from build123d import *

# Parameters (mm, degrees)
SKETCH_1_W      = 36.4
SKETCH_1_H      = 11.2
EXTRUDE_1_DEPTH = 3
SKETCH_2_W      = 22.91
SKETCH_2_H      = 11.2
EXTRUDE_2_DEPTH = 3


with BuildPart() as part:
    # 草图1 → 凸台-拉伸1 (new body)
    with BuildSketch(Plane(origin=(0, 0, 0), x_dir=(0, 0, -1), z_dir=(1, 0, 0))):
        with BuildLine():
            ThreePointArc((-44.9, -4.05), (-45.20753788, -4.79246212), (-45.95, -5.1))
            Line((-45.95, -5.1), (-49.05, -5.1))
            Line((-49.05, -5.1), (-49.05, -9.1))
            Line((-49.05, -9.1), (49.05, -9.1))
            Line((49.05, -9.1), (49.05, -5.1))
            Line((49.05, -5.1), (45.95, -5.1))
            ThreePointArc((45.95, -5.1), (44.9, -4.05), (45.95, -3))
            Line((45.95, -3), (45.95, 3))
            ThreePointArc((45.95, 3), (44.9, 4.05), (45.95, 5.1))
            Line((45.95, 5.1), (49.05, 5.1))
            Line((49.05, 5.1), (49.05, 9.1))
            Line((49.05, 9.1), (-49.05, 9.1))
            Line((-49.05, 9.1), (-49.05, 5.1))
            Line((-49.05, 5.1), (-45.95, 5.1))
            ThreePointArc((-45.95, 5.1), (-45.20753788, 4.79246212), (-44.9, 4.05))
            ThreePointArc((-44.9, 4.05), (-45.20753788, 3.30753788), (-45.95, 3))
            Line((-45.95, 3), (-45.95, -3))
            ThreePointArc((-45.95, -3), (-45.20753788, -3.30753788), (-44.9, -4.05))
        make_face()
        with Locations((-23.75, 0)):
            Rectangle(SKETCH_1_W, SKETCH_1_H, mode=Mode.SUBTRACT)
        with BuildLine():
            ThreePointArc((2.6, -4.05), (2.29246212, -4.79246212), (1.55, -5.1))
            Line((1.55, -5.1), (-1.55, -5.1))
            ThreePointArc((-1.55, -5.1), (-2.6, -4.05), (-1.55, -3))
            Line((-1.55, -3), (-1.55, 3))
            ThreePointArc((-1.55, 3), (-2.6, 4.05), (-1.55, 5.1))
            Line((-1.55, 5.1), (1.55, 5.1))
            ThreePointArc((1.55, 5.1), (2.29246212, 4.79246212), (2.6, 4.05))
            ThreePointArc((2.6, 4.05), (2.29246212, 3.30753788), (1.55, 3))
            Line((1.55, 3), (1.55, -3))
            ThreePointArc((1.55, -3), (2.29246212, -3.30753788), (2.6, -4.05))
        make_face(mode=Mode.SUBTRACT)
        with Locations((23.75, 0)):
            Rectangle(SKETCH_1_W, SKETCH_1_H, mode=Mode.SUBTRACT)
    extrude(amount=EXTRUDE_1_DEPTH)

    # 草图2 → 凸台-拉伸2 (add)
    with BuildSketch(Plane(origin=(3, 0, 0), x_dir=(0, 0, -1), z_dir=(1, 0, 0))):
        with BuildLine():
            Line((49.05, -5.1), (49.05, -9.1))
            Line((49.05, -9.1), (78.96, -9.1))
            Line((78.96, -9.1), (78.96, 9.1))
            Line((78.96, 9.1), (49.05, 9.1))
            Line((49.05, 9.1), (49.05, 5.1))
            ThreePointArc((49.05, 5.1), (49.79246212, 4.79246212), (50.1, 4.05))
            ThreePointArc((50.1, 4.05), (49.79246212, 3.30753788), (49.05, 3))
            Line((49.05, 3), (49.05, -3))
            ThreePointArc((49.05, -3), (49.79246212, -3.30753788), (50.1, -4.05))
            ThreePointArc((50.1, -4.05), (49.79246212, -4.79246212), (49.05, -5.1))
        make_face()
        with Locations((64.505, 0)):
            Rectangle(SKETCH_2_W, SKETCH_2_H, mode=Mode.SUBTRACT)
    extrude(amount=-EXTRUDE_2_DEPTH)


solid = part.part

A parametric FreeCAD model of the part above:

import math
import FreeCAD as App
import Part
import Sketcher

V = App.Vector

doc = App.newDocument("Part")
body = doc.addObject("PartDesign::Body", "Body")

# Sketch on YZ plane
sketch1 = body.newObject("Sketcher::SketchObject", "Sketch")
sketch1.AttachmentSupport = (doc.getObject("YZ_Plane"), [""])
sketch1.MapMode = "FlatFace"
sketch1.addGeometry([
    Part.ArcOfCircle(Part.Circle(V(-4, 46, 0), V(0, 0, 1), 1.1), math.radians(-180), math.radians(-90)),  # 0
    Part.LineSegment(V(-5.1, 46, 0), V(-5.1, 49, 0)),  # 1
    Part.LineSegment(V(-5.1, 49, 0), V(-9.1, 49, 0)),  # 2
    Part.LineSegment(V(-9.1, 49, 0), V(-9.1, -49, 0)),  # 3
    Part.LineSegment(V(-9.1, -49, 0), V(-5.1, -49, 0)),  # 4
    Part.LineSegment(V(-5.1, -49, 0), V(-5.1, -46, 0)),  # 5
    Part.ArcOfCircle(Part.Circle(V(-4, -46, 0), V(0, 0, 1), 1.1), math.radians(0), math.radians(180)),  # 6
    Part.LineSegment(V(-3, -46, 0), V(3, -46, 0)),  # 7
    Part.ArcOfCircle(Part.Circle(V(4, -46, 0), V(0, 0, 1), 1.1), math.radians(0), math.radians(180)),  # 8
    Part.LineSegment(V(5.1, -46, 0), V(5.1, -49, 0)),  # 9
    Part.LineSegment(V(5.1, -49, 0), V(9.1, -49, 0)),  # 10
    Part.LineSegment(V(9.1, -49, 0), V(9.1, 49, 0)),  # 11
    Part.LineSegment(V(9.1, 49, 0), V(5.1, 49, 0)),  # 12
    Part.LineSegment(V(5.1, 49, 0), V(5.1, 46, 0)),  # 13
    Part.ArcOfCircle(Part.Circle(V(4, 46, 0), V(0, 0, 1), 1.1), math.radians(-90), math.radians(0)),  # 14
    Part.ArcOfCircle(Part.Circle(V(4.1, 46, 0), V(0, 0, 1), 1.1), math.radians(-180), math.radians(-90)),  # 15
    Part.LineSegment(V(3, 46, 0), V(-3, 46, 0)),  # 16
    Part.ArcOfCircle(Part.Circle(V(-4.1, 46, 0), V(0, 0, 1), 1.1), math.radians(-90), math.radians(0)),  # 17
    Part.LineSegment(V(-5.6, 5.5, 0), V(-5.6, 42, 0)),  # 18
    Part.LineSegment(V(-5.6, 42, 0), V(5.6, 42, 0)),  # 19
    Part.LineSegment(V(5.6, 42, 0), V(5.6, 5.5, 0)),  # 20
    Part.LineSegment(V(5.6, 5.5, 0), V(-5.6, 5.5, 0)),  # 21
    Part.ArcOfCircle(Part.Circle(V(-4.1, -1.5, 0), V(0, 0, 1), 1.1), math.radians(-90), math.radians(0)),  # 22
    Part.ArcOfCircle(Part.Circle(V(-4, -1.5, 0), V(0, 0, 1), 1.1), math.radians(-180), math.radians(-90)),  # 23
    Part.LineSegment(V(-5.1, -1.6, 0), V(-5.1, 1.6, 0)),  # 24
    Part.ArcOfCircle(Part.Circle(V(-4, 1.6, 0), V(0, 0, 1), 1.1), math.radians(0), math.radians(180)),  # 25
    Part.LineSegment(V(-3, 1.6, 0), V(3, 1.6, 0)),  # 26
    Part.ArcOfCircle(Part.Circle(V(4, 1.6, 0), V(0, 0, 1), 1.1), math.radians(0), math.radians(180)),  # 27
    Part.LineSegment(V(5.1, 1.6, 0), V(5.1, -1.6, 0)),  # 28
    Part.ArcOfCircle(Part.Circle(V(4, -1.5, 0), V(0, 0, 1), 1.1), math.radians(-90), math.radians(0)),  # 29
    Part.ArcOfCircle(Part.Circle(V(4.1, -1.5, 0), V(0, 0, 1), 1.1), math.radians(-180), math.radians(-90)),  # 30
    Part.LineSegment(V(3, -1.6, 0), V(-3, -1.6, 0)),  # 31
    Part.LineSegment(V(-5.6, -42, 0), V(-5.6, -5.5, 0)),  # 32
    Part.LineSegment(V(-5.6, -5.5, 0), V(5.6, -5.5, 0)),  # 33
    Part.LineSegment(V(5.6, -5.5, 0), V(5.6, -42, 0)),  # 34
    Part.LineSegment(V(5.6, -42, 0), V(-5.6, -42, 0)),  # 35
], False)
sketch1.addConstraint([
    Sketcher.Constraint("Tangent", 0, 1, 1, 1),
    Sketcher.Constraint("Coincident", 1, 2, 2, 1),
    Sketcher.Constraint("Coincident", 2, 2, 3, 1),
    Sketcher.Constraint("Coincident", 3, 2, 4, 1),
    Sketcher.Constraint("Coincident", 4, 2, 5, 1),
    Sketcher.Constraint("Tangent", 5, 2, 6, 2),
    Sketcher.Constraint("Coincident", 6, 1, 7, 1),
    Sketcher.Constraint("Coincident", 7, 2, 8, 2),
    Sketcher.Constraint("Tangent", 8, 1, 9, 1),
    Sketcher.Constraint("Coincident", 9, 2, 10, 1),
    Sketcher.Constraint("Coincident", 10, 2, 11, 1),
    Sketcher.Constraint("Coincident", 11, 2, 12, 1),
    Sketcher.Constraint("Coincident", 12, 2, 13, 1),
    Sketcher.Constraint("Tangent", 13, 2, 14, 2),
    Sketcher.Constraint("Tangent", 14, 1, 15, 2),
    Sketcher.Constraint("Coincident", 15, 1, 16, 1),
    Sketcher.Constraint("Coincident", 16, 2, 17, 2),
    Sketcher.Constraint("Tangent", 17, 1, 0, 2),
    Sketcher.Constraint("Coincident", 18, 2, 19, 1),
    Sketcher.Constraint("Coincident", 19, 2, 20, 1),
    Sketcher.Constraint("Coincident", 20, 2, 21, 1),
    Sketcher.Constraint("Coincident", 21, 2, 18, 1),
    Sketcher.Constraint("Tangent", 22, 1, 23, 2),
    Sketcher.Constraint("Tangent", 23, 1, 24, 1),
    Sketcher.Constraint("Tangent", 24, 2, 25, 2),
    Sketcher.Constraint("Coincident", 25, 1, 26, 1),
    Sketcher.Constraint("Coincident", 26, 2, 27, 2),
    Sketcher.Constraint("Tangent", 27, 1, 28, 1),
    Sketcher.Constraint("Tangent", 28, 2, 29, 2),
    Sketcher.Constraint("Tangent", 29, 1, 30, 2),
    Sketcher.Constraint("Coincident", 30, 1, 31, 1),
    Sketcher.Constraint("Coincident", 31, 2, 22, 2),
    Sketcher.Constraint("Coincident", 32, 2, 33, 1),
    Sketcher.Constraint("Coincident", 33, 2, 34, 1),
    Sketcher.Constraint("Coincident", 34, 2, 35, 1),
    Sketcher.Constraint("Coincident", 35, 2, 32, 1),
    Sketcher.Constraint("Vertical", 1),
    Sketcher.Constraint("Horizontal", 2),
    Sketcher.Constraint("Vertical", 3),
    Sketcher.Constraint("Horizontal", 4),
    Sketcher.Constraint("Vertical", 5),
    Sketcher.Constraint("Horizontal", 7),
    Sketcher.Constraint("Vertical", 9),
    Sketcher.Constraint("Horizontal", 10),
    Sketcher.Constraint("Vertical", 11),
    Sketcher.Constraint("Horizontal", 12),
    Sketcher.Constraint("Vertical", 13),
    Sketcher.Constraint("Horizontal", 16),
    Sketcher.Constraint("Vertical", 18),
    Sketcher.Constraint("Horizontal", 19),
    Sketcher.Constraint("Vertical", 20),
    Sketcher.Constraint("Horizontal", 21),
    Sketcher.Constraint("Vertical", 24),
    Sketcher.Constraint("Horizontal", 26),
    Sketcher.Constraint("Vertical", 28),
    Sketcher.Constraint("Horizontal", 31),
    Sketcher.Constraint("Vertical", 32),
    Sketcher.Constraint("Horizontal", 33),
    Sketcher.Constraint("Vertical", 34),
    Sketcher.Constraint("Horizontal", 35),
    Sketcher.Constraint("Equal", 0, 6),
    Sketcher.Constraint("Equal", 6, 8),
    Sketcher.Constraint("Equal", 8, 14),
    Sketcher.Constraint("Equal", 14, 15),
    Sketcher.Constraint("Equal", 15, 17),
    Sketcher.Constraint("Equal", 17, 22),
    Sketcher.Constraint("Equal", 22, 23),
    Sketcher.Constraint("Equal", 23, 25),
    Sketcher.Constraint("Equal", 25, 27),
    Sketcher.Constraint("Equal", 27, 29),
    Sketcher.Constraint("Equal", 29, 30),
    Sketcher.Constraint("Symmetric", 0, 3, 8, 3, -1, 1),
    Sketcher.Constraint("Symmetric", 6, 3, 14, 3, -1, 1),
    Sketcher.Constraint("Symmetric", 22, 3, 27, 3, -1, 1),
    Sketcher.Constraint("Symmetric", 2, 2, 10, 2, -1, 1),
    Sketcher.Constraint("Symmetric", 20, 2, 32, 2, -1, 1),
    Sketcher.Constraint("Symmetric", 18, 2, 34, 2, -1, 1),
    Sketcher.Constraint("Symmetric", 6, 3, 8, 3, -2),
    Sketcher.Constraint("Symmetric", 22, 1, 29, 1, -2),
    Sketcher.Constraint("Horizontal", 25, 3, 27, 3),
    Sketcher.Constraint("Horizontal", 5, 2, 6, 1),
    Sketcher.Constraint("Horizontal", 4, 2, 9, 2),
    Sketcher.Constraint("Horizontal", 2, 2, 11, 2),
    Sketcher.Constraint("Horizontal", 13, 2, 15, 1),
    Sketcher.Constraint("Horizontal", 24, 2, 25, 1),
    Sketcher.Constraint("Horizontal", 28, 2, 30, 1),
    Sketcher.Constraint("Vertical", 17, 3, 22, 3),
    Sketcher.Constraint("Vertical", 30, 3, 14, 1),
    Sketcher.Constraint("Vertical", 25, 3, 17, 1),
    Sketcher.Constraint("Vertical", 17, 1, 22, 1),
    Sketcher.Constraint("Vertical", 21, 2, 32, 2),
    Sketcher.Constraint("Equal", 13, 24),
    Sketcher.Constraint("DistanceX", 2, 2, 2, 1, 4.0),
    Sketcher.Constraint("DistanceX", 7, 1, 7, 2, 6.0),
    Sketcher.Constraint("Radius", 0, 1.05),
    Sketcher.Constraint("DistanceX", 19, 1, 19, 2, 11.2),
    Sketcher.Constraint("DistanceY", 1, 1, 1, 2, 3.1),
    Sketcher.Constraint("DistanceY", 3, 2, 3, 1, 98.1),
    Sketcher.Constraint("DistanceY", 18, 1, 18, 2, 36.4),
    Sketcher.Constraint("DistanceY", 18, 2, 0, 1, 4.0),
])
pad1 = body.newObject("PartDesign::Pad", "Pad")
pad1.Profile = sketch1
pad1.Length = 3

# Sketch on YZ plane
sketch2 = body.newObject("Sketcher::SketchObject", "Sketch001")
sketch2.AttachmentSupport = (doc.getObject("YZ_Plane"), [""])
sketch2.MapMode = "FlatFace"
sketch2.AttachmentOffset = App.Placement(V(0, 0, 3), App.Rotation())
sketch2.addGeometry([
    Part.LineSegment(V(-5.1, -49, 0), V(-9.1, -49, 0)),  # 0
    Part.LineSegment(V(-9.1, -49, 0), V(-9.1, -79, 0)),  # 1
    Part.LineSegment(V(-9.1, -79, 0), V(9.1, -79, 0)),  # 2
    Part.LineSegment(V(9.1, -79, 0), V(9.1, -49, 0)),  # 3
    Part.LineSegment(V(9.1, -49, 0), V(5.1, -49, 0)),  # 4
    Part.ArcOfCircle(Part.Circle(V(4, -49, 0), V(0, 0, 1), 1.1), math.radians(-90), math.radians(0)),  # 5
    Part.ArcOfCircle(Part.Circle(V(4.1, -49, 0), V(0, 0, 1), 1.1), math.radians(-180), math.radians(-90)),  # 6
    Part.LineSegment(V(3, -49, 0), V(-3, -49, 0)),  # 7
    Part.ArcOfCircle(Part.Circle(V(-4.1, -49, 0), V(0, 0, 1), 1.1), math.radians(-90), math.radians(0)),  # 8
    Part.ArcOfCircle(Part.Circle(V(-4, -49, 0), V(0, 0, 1), 1.1), math.radians(-180), math.radians(-90)),  # 9
    Part.LineSegment(V(-5.6, -76, 0), V(-5.6, -53, 0)),  # 10
    Part.LineSegment(V(-5.6, -53, 0), V(5.6, -53, 0)),  # 11
    Part.LineSegment(V(5.6, -53, 0), V(5.6, -76, 0)),  # 12
    Part.LineSegment(V(5.6, -76, 0), V(-5.6, -76, 0)),  # 13
], False)
sketch2.addConstraint([
    Sketcher.Constraint("Coincident", 0, 2, 1, 1),
    Sketcher.Constraint("Coincident", 1, 2, 2, 1),
    Sketcher.Constraint("Coincident", 2, 2, 3, 1),
    Sketcher.Constraint("Coincident", 3, 2, 4, 1),
    Sketcher.Constraint("Coincident", 4, 2, 5, 2),
    Sketcher.Constraint("Tangent", 5, 1, 6, 2),
    Sketcher.Constraint("Coincident", 6, 1, 7, 1),
    Sketcher.Constraint("Coincident", 7, 2, 8, 2),
    Sketcher.Constraint("Tangent", 8, 1, 9, 2),
    Sketcher.Constraint("Coincident", 9, 1, 0, 1),
    Sketcher.Constraint("Coincident", 10, 2, 11, 1),
    Sketcher.Constraint("Coincident", 11, 2, 12, 1),
    Sketcher.Constraint("Coincident", 12, 2, 13, 1),
    Sketcher.Constraint("Coincident", 13, 2, 10, 1),
    Sketcher.Constraint("Horizontal", 0),
    Sketcher.Constraint("Vertical", 1),
    Sketcher.Constraint("Horizontal", 2),
    Sketcher.Constraint("Vertical", 3),
    Sketcher.Constraint("Horizontal", 4),
    Sketcher.Constraint("Horizontal", 7),
    Sketcher.Constraint("Vertical", 10),
    Sketcher.Constraint("Horizontal", 11),
    Sketcher.Constraint("Vertical", 12),
    Sketcher.Constraint("Horizontal", 13),
    Sketcher.Constraint("Equal", 5, 6),
    Sketcher.Constraint("Equal", 6, 8),
    Sketcher.Constraint("Equal", 8, 9),
    Sketcher.Constraint("Symmetric", 5, 3, 8, 3, -2),
    Sketcher.Constraint("Symmetric", 0, 2, 3, 2, -2),
    Sketcher.Constraint("Horizontal", 9, 3, 0, 2),
    Sketcher.Constraint("Horizontal", 4, 2, 6, 1),
    Sketcher.Constraint("Vertical", 6, 3, 5, 1),
    Sketcher.Constraint("Vertical", 9, 3, 8, 1),
    Sketcher.Constraint("DistanceX", 0, 2, 0, 1, 4.0),
    Sketcher.Constraint("DistanceX", 7, 2, 7, 1, 6.0),
    Sketcher.Constraint("Radius", 5, 1.05),
    Sketcher.Constraint("DistanceX", 11, 1, 11, 2, 11.2),
    Sketcher.Constraint("DistanceY", 10, 2, 9, 1, 4.0),
    Sketcher.Constraint("DistanceY", 2, 2, 12, 2, 3.0),
    Sketcher.Constraint("DistanceY", 1, 2, 1, 1, 29.91),
    Sketcher.Constraint("DistanceY", 5, 1, -1, 1, 50.1),
    Sketcher.Constraint("DistanceX", 10, 2, -1, 1, 5.6),
])
pad2 = body.newObject("PartDesign::Pad", "Pad001")
pad2.Profile = sketch2
pad2.Length = 3
pad2.Reversed = True

doc.recompute()
